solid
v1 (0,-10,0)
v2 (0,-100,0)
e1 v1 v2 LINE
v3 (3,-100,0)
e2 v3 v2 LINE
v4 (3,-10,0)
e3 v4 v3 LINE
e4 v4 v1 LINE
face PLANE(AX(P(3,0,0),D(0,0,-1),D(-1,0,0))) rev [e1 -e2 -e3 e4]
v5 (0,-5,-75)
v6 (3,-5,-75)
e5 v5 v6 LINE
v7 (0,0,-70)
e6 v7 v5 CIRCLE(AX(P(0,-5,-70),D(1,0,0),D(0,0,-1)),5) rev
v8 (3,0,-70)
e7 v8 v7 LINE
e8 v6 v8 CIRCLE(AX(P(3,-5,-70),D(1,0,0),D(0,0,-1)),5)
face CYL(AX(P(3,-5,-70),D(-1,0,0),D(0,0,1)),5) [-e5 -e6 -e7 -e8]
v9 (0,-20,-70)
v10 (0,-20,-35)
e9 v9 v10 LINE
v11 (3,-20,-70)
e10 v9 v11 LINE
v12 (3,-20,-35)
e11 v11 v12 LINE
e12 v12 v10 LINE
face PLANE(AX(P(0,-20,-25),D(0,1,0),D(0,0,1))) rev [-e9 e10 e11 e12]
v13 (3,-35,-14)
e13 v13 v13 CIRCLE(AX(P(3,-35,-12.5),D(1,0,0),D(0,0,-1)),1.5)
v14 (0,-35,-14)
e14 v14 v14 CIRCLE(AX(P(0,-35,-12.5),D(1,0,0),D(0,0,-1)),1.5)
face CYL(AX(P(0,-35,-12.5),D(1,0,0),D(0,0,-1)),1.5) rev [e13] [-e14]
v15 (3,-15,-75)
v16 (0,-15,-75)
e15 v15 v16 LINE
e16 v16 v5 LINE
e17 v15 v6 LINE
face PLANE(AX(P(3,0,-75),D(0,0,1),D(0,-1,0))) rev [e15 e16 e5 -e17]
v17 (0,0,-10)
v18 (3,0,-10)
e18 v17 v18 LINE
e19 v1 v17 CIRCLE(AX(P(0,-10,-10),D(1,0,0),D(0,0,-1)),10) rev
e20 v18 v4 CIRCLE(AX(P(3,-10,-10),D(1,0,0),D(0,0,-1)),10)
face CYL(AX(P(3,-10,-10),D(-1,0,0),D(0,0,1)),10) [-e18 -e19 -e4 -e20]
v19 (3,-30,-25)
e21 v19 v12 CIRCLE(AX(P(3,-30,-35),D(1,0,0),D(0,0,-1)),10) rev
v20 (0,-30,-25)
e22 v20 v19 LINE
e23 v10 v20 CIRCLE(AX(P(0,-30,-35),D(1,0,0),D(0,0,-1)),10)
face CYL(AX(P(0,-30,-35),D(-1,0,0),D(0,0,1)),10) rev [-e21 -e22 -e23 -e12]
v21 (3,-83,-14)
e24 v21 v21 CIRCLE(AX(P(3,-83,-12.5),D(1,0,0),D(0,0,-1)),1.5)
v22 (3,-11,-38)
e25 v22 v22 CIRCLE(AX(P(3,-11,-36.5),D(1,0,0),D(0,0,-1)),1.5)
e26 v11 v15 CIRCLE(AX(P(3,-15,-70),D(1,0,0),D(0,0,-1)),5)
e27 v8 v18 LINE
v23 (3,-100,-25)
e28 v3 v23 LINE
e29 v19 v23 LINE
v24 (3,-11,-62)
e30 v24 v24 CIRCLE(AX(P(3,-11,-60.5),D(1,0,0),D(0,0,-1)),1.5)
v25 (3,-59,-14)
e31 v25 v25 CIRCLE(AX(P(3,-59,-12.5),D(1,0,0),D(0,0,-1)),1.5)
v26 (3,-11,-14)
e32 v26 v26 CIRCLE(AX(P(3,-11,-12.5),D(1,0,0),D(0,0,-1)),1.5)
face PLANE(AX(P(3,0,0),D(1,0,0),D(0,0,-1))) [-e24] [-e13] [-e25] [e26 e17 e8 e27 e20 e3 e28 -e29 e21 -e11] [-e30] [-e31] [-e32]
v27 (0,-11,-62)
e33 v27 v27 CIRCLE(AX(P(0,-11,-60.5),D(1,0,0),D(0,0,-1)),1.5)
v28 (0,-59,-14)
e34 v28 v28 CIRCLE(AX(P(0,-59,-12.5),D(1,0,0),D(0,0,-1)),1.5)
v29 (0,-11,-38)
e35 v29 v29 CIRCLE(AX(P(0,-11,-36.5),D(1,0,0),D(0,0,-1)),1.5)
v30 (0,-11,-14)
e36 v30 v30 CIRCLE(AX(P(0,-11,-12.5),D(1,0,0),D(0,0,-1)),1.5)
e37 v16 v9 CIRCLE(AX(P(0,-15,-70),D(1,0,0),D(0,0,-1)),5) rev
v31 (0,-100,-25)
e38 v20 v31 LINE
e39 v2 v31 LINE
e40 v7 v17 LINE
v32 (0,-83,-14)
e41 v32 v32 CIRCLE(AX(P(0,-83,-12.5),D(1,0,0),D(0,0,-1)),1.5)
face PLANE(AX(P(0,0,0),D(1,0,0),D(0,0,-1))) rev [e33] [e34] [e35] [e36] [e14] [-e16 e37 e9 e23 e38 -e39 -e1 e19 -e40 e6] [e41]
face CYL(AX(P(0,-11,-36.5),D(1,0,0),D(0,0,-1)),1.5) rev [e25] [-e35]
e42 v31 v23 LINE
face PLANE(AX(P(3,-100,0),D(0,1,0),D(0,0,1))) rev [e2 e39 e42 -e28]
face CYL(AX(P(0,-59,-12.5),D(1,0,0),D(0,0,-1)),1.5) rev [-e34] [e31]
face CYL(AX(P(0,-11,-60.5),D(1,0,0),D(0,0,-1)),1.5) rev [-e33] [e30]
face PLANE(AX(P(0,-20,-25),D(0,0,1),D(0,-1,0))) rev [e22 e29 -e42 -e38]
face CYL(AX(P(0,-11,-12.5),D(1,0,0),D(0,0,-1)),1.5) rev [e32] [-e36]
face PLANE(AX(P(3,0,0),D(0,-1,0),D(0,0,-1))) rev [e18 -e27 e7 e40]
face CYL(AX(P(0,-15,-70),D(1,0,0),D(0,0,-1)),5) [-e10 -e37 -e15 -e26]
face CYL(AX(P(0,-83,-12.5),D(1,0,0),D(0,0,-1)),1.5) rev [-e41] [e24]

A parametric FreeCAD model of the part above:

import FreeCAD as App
import Part
import Sketcher


def edges_at(feature, points):
    """Names of the edges that pass closest to the given points."""
    edges = feature.Shape.Edges
    near = lambda p: min(range(len(edges)), key=lambda i: edges[i].distToShape(Part.Vertex(*p))[0])
    return sorted({f"Edge{near(p) + 1}" for p in points})

doc = App.newDocument("Part")
body = doc.addObject("PartDesign::Body", "Body")

# Sketch on YZ plane
sketch1 = body.newObject("Sketcher::SketchObject", "Sketch")
sketch1.AttachmentSupport = (doc.getObject("YZ_Plane"), [""])
sketch1.MapMode = "FlatFace"
sketch1.addGeometry([
    Part.LineSegment(App.Vector(0, 0, 0), App.Vector(-100, 0, 0)),
    Part.LineSegment(App.Vector(-100, 0, 0), App.Vector(-100, -75, 0)),
    Part.LineSegment(App.Vector(-100, -75, 0), App.Vector(0, -75, 0)),
    Part.LineSegment(App.Vector(0, -75, 0), App.Vector(0, 0, 0)),
], False)
sketch1.addConstraint([
    Sketcher.Constraint("Coincident", 0, 2, 1, 1),
    Sketcher.Constraint("Coincident", 1, 2, 2, 1),
    Sketcher.Constraint("Coincident", 2, 2, 3, 1),
    Sketcher.Constraint("Coincident", 3, 2, 0, 1),
    Sketcher.Constraint("Horizontal", 0),
    Sketcher.Constraint("Vertical", 1),
    Sketcher.Constraint("Horizontal", 2),
    Sketcher.Constraint("Vertical", 3),
    Sketcher.Constraint("Coincident", 3, 2, -1, 1),
    Sketcher.Constraint("DistanceX", 0, 2, 0, 1, 100.0),
    Sketcher.Constraint("DistanceY", 1, 2, 1, 1, 75.0),
])
pad1 = body.newObject("PartDesign::Pad", "Pad")
pad1.Profile = sketch1
pad1.Length = 3

# Sketch on YZ plane
sketch2 = body.newObject("Sketcher::SketchObject", "Sketch001")
sketch2.AttachmentSupport = (doc.getObject("YZ_Plane"), [""])
sketch2.MapMode = "FlatFace"
sketch2.AttachmentOffset = App.Placement(App.Vector(0, 0, 3), App.Rotation())
sketch2.addGeometry([
    Part.LineSegment(App.Vector(-20, -25, 0), App.Vector(-100, -25, 0)),
    Part.LineSegment(App.Vector(-100, -25, 0), App.Vector(-100, -75, 0)),
    Part.LineSegment(App.Vector(-100, -75, 0), App.Vector(-20, -75, 0)),
    Part.LineSegment(App.Vector(-20, -75, 0), App.Vector(-20, -25, 0)),
], False)
sketch2.addConstraint([
    Sketcher.Constraint("Coincident", 0, 2, 1, 1),
    Sketcher.Constraint("Coincident", 1, 2, 2, 1),
    Sketcher.Constraint("Coincident", 2, 2, 3, 1),
    Sketcher.Constraint("Coincident", 3, 2, 0, 1),
    Sketcher.Constraint("Horizontal", 0),
    Sketcher.Constraint("Vertical", 1),
    Sketcher.Constraint("Horizontal", 2),
    Sketcher.Constraint("Vertical", 3),
    Sketcher.Constraint("DistanceX", 0, 2, 0, 1, 80.0),
    Sketcher.Constraint("DistanceY", 1, 2, 1, 1, 50.0),
    Sketcher.Constraint("DistanceX", 0, 2, -1, 1, 100.0),
    Sketcher.Constraint("DistanceY", 0, 2, -1, 1, 25.0),
])
pocket1 = body.newObject("PartDesign::Pocket", "Pocket")
pocket1.Profile = sketch2
pocket1.Length = 3
doc.recompute()

fillet = body.newObject("PartDesign::Fillet", "Fillet")
fillet.Base = (pocket1, edges_at(pocket1, [(1.5, -20, -25), (1.5, 0, 0)]))
fillet.Radius = 10
doc.recompute()

fillet2 = body.newObject("PartDesign::Fillet", "Fillet001")
fillet2.Base = (fillet, edges_at(fillet, [(1.5, -20, -75), (1.5, 0, -75)]))
fillet2.Radius = 5

# Sketch on YZ plane
sketch3 = body.newObject("Sketcher::SketchObject", "Sketch002")
sketch3.AttachmentSupport = (doc.getObject("YZ_Plane"), [""])
sketch3.MapMode = "FlatFace"
sketch3.AttachmentOffset = App.Placement(App.Vector(0, 0, 3), App.Rotation())
sketch3.addGeometry([
    Part.Circle(App.Vector(-11, -12.5, 0), App.Vector(0, 0, 1), 1.5),  # 0
    Part.Circle(App.Vector(-59, -12.5, 0), App.Vector(0, 0, 1), 1.5),  # 1
    Part.Circle(App.Vector(-83, -12.5, 0), App.Vector(0, 0, 1), 1.5),  # 2
    Part.Circle(App.Vector(-35, -12.5, 0), App.Vector(0, 0, 1), 1.5),  # 3
    Part.Circle(App.Vector(-11, -36.5, 0), App.Vector(0, 0, 1), 1.5),  # 4
    Part.Circle(App.Vector(-11, -60.5, 0), App.Vector(0, 0, 1), 1.5),  # 5
], False)
sketch3.addConstraint([
    Sketcher.Constraint("Equal", 0, 1),
    Sketcher.Constraint("Equal", 1, 2),
    Sketcher.Constraint("Equal", 2, 3),
    Sketcher.Constraint("Equal", 3, 4),
    Sketcher.Constraint("Equal", 4, 5),
    Sketcher.Constraint("Horizontal", 0, 3, 1, 3),
    Sketcher.Constraint("Horizontal", 1, 3, 2, 3),
    Sketcher.Constraint("Horizontal", 2, 3, 3, 3),
    Sketcher.Constraint("Vertical", 0, 3, 4, 3),
    Sketcher.Constraint("Vertical", 4, 3, 5, 3),
    Sketcher.Constraint("Diameter", 0, 3.0),
    Sketcher.Constraint("DistanceX", 0, 3, -1, 1, 11.0),
    Sketcher.Constraint("DistanceX", 1, 3, -1, 1, 59.0),
    Sketcher.Constraint("DistanceX", 2, 3, -1, 1, 83.0),
    Sketcher.Constraint("DistanceX", 3, 3, -1, 1, 35.0),
    Sketcher.Constraint("DistanceY", 4, 3, 0, 3, 24.0),
    Sketcher.Constraint("DistanceY", 5, 3, 4, 3, 24.0),
    Sketcher.Constraint("DistanceY", 0, 3, -1, 1, 12.5),
])
pocket2 = body.newObject("PartDesign::Pocket", "Pocket001")
pocket2.Profile = sketch3
pocket2.Length = 3

doc.recompute()
